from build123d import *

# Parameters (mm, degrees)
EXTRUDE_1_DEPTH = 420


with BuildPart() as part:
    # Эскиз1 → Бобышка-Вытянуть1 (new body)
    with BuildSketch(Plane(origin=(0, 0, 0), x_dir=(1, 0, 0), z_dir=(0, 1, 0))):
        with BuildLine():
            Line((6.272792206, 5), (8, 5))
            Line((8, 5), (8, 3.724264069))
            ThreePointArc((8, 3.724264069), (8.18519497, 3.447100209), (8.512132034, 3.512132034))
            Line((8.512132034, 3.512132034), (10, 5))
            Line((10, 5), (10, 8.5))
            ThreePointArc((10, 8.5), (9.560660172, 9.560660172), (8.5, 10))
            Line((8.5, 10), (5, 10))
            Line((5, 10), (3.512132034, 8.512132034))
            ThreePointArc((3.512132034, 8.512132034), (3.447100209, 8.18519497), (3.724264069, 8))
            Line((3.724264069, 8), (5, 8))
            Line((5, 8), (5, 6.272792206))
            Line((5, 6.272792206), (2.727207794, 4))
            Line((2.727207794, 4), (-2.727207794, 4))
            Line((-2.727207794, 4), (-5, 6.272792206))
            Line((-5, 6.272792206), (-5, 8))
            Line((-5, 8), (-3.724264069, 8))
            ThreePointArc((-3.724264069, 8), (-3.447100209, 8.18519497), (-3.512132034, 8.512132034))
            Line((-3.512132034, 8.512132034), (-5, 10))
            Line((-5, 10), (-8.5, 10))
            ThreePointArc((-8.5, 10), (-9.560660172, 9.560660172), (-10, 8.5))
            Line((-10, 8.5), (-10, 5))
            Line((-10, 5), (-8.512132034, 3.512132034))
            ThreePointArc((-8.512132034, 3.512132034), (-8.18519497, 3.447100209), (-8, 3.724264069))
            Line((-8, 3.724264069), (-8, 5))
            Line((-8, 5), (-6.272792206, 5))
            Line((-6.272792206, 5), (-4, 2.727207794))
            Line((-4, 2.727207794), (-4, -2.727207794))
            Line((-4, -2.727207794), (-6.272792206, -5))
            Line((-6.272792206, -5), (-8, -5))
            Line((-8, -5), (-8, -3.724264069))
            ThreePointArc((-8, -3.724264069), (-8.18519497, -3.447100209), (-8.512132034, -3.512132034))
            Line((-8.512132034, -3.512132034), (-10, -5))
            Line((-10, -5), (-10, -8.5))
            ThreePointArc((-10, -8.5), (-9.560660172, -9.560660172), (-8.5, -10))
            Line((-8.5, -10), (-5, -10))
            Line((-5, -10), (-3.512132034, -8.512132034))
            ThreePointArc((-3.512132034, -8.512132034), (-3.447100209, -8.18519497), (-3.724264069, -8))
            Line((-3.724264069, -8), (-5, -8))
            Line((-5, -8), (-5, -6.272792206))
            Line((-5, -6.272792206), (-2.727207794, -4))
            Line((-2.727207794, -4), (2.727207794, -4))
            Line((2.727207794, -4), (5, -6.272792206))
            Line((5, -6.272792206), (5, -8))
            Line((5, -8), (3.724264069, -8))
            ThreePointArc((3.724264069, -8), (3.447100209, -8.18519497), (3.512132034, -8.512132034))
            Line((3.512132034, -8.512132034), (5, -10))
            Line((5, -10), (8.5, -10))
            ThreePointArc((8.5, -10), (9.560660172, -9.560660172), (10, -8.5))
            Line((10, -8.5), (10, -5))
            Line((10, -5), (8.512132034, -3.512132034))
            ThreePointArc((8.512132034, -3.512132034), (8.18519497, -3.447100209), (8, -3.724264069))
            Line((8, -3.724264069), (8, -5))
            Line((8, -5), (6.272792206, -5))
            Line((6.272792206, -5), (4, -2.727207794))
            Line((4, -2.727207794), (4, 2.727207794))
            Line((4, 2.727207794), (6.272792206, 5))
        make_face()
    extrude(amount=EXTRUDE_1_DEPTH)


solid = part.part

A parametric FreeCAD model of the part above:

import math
import FreeCAD as App
import Part
import Sketcher

V = App.Vector
Q = App.Units.Quantity

doc = App.newDocument("Part")
body = doc.addObject("PartDesign::Body", "Body")

sketch1 = body.newObject("Sketcher::SketchObject", "Sketch")
sketch1.AttachmentSupport = (doc.getObject("XZ_Plane"), [""])
sketch1.MapMode = "FlatFace"
sketch1.addGeometry([
    Part.LineSegment(V(6.27, -5, 0), V(8, -5, 0)),
    Part.LineSegment(V(8, -5, 0), V(8, -3.72, 0)),
    Part.ArcOfCircle(Part.Circle(V(8.3, -3.72, 0), V(0, 0, 1), 0.3), math.radians(45), math.radians(180)),
    Part.LineSegment(V(8.51, -3.51, 0), V(10, -5, 0)),
    Part.LineSegment(V(10, -5, 0), V(10, -8.5, 0)),
    Part.ArcOfCircle(Part.Circle(V(8.5, -8.5, 0), V(0, 0, 1), 1.5), math.radians(-90), math.radians(0)),
    Part.LineSegment(V(8.5, -10, 0), V(5, -10, 0)),
    Part.LineSegment(V(5, -10, 0), V(3.51, -8.51, 0)),
    Part.ArcOfCircle(Part.Circle(V(3.72, -8.3, 0), V(0, 0, 1), 0.3), math.radians(90), math.radians(225)),
    Part.LineSegment(V(3.72, -8, 0), V(5, -8, 0)),
    Part.LineSegment(V(5, -8, 0), V(5, -6.27, 0)),
    Part.LineSegment(V(5, -6.27, 0), V(2.73, -4, 0)),
    Part.LineSegment(V(2.73, -4, 0), V(-2.73, -4, 0)),
    Part.LineSegment(V(-2.73, -4, 0), V(-5, -6.27, 0)),
    Part.LineSegment(V(-5, -6.27, 0), V(-5, -8, 0)),
    Part.LineSegment(V(-5, -8, 0), V(-3.72, -8, 0)),
    Part.ArcOfCircle(Part.Circle(V(-3.72, -8.3, 0), V(0, 0, 1), 0.3), math.radians(-45), math.radians(90)),
    Part.LineSegment(V(-3.51, -8.51, 0), V(-5, -10, 0)),
    Part.LineSegment(V(-5, -10, 0), V(-8.5, -10, 0)),
    Part.ArcOfCircle(Part.Circle(V(-8.5, -8.5, 0), V(0, 0, 1), 1.5), math.radians(180), math.radians(270)),
    Part.LineSegment(V(-10, -8.5, 0), V(-10, -5, 0)),
    Part.LineSegment(V(-10, -5, 0), V(-8.51, -3.51, 0)),
    Part.ArcOfCircle(Part.Circle(V(-8.3, -3.72, 0), V(0, 0, 1), 0.3), math.radians(0), math.radians(135)),
    Part.LineSegment(V(-8, -3.72, 0), V(-8, -5, 0)),
    Part.LineSegment(V(-8, -5, 0), V(-6.27, -5, 0)),
    Part.LineSegment(V(-6.27, -5, 0), V(-4, -2.73, 0)),
    Part.LineSegment(V(-4, -2.73, 0), V(-4, 2.73, 0)),
    Part.LineSegment(V(-4, 2.73, 0), V(-6.27, 5, 0)),
    Part.LineSegment(V(-6.27, 5, 0), V(-8, 5, 0)),
    Part.LineSegment(V(-8, 5, 0), V(-8, 3.72, 0)),
    Part.ArcOfCircle(Part.Circle(V(-8.3, 3.72, 0), V(0, 0, 1), 0.3), math.radians(-135), math.radians(0)),
    Part.LineSegment(V(-8.51, 3.51, 0), V(-10, 5, 0)),
    Part.LineSegment(V(-10, 5, 0), V(-10, 8.5, 0)),
    Part.ArcOfCircle(Part.Circle(V(-8.5, 8.5, 0), V(0, 0, 1), 1.5), math.radians(90), math.radians(180)),
    Part.LineSegment(V(-8.5, 10, 0), V(-5, 10, 0)),
    Part.LineSegment(V(-5, 10, 0), V(-3.51, 8.51, 0)),
    Part.ArcOfCircle(Part.Circle(V(-3.72, 8.3, 0), V(0, 0, 1), 0.3), math.radians(-90), math.radians(45)),
    Part.LineSegment(V(-3.72, 8, 0), V(-5, 8, 0)),
    Part.LineSegment(V(-5, 8, 0), V(-5, 6.27, 0)),
    Part.LineSegment(V(-5, 6.27, 0), V(-2.73, 4, 0)),
    Part.LineSegment(V(-2.73, 4, 0), V(2.73, 4, 0)),
    Part.LineSegment(V(2.73, 4, 0), V(5, 6.27, 0)),
    Part.LineSegment(V(5, 6.27, 0), V(5, 8, 0)),
    Part.LineSegment(V(5, 8, 0), V(3.72, 8, 0)),
    Part.ArcOfCircle(Part.Circle(V(3.72, 8.3, 0), V(0, 0, 1), 0.3), math.radians(135), math.radians(270)),
    Part.LineSegment(V(3.51, 8.51, 0), V(5, 10, 0)),
    Part.LineSegment(V(5, 10, 0), V(8.5, 10, 0)),
    Part.ArcOfCircle(Part.Circle(V(8.5, 8.5, 0), V(0, 0, 1), 1.5), math.radians(0), math.radians(90)),
    Part.LineSegment(V(10, 8.5, 0), V(10, 5, 0)),
    Part.LineSegment(V(10, 5, 0), V(8.51, 3.51, 0)),
    Part.ArcOfCircle(Part.Circle(V(8.3, 3.72, 0), V(0, 0, 1), 0.3), math.radians(180), math.radians(315)),
    Part.LineSegment(V(8, 3.72, 0), V(8, 5, 0)),
    Part.LineSegment(V(8, 5, 0), V(6.27, 5, 0)),
    Part.LineSegment(V(6.27, 5, 0), V(4, 2.73, 0)),
    Part.LineSegment(V(4, 2.73, 0), V(4, -2.73, 0)),
    Part.LineSegment(V(4, -2.73, 0), V(6.27, -5, 0)),
], False)
sketch1.addConstraint([
    Sketcher.Constraint("Coincident", 0, 2, 1, 1),
    Sketcher.Constraint("Tangent", 1, 2, 2, 2),
    Sketcher.Constraint("Tangent", 2, 1, 3, 1),
    Sketcher.Constraint("Coincident", 3, 2, 4, 1),
    Sketcher.Constraint("Tangent", 4, 2, 5, 2),
    Sketcher.Constraint("Tangent", 5, 1, 6, 1),
    Sketcher.Constraint("Coincident", 6, 2, 7, 1),
    Sketcher.Constraint("Tangent", 7, 2, 8, 2),
    Sketcher.Constraint("Tangent", 8, 1, 9, 1),
    Sketcher.Constraint("Coincident", 9, 2, 10, 1),
    Sketcher.Constraint("Coincident", 10, 2, 11, 1),
    Sketcher.Constraint("Coincident", 11, 2, 12, 1),
    Sketcher.Constraint("Coincident", 12, 2, 13, 1),
    Sketcher.Constraint("Coincident", 13, 2, 14, 1),
    Sketcher.Constraint("Coincident", 14, 2, 15, 1),
    Sketcher.Constraint("Tangent", 15, 2, 16, 2),
    Sketcher.Constraint("Tangent", 16, 1, 17, 1),
    Sketcher.Constraint("Coincident", 17, 2, 18, 1),
    Sketcher.Constraint("Tangent", 18, 2, 19, 2),
    Sketcher.Constraint("Tangent", 19, 1, 20, 1),
    Sketcher.Constraint("Coincident", 20, 2, 21, 1),
    Sketcher.Constraint("Tangent", 21, 2, 22, 2),
    Sketcher.Constraint("Tangent", 22, 1, 23, 1),
    Sketcher.Constraint("Coincident", 23, 2, 24, 1),
    Sketcher.Constraint("Coincident", 24, 2, 25, 1),
    Sketcher.Constraint("Coincident", 25, 2, 26, 1),
    Sketcher.Constraint("Coincident", 26, 2, 27, 1),
    Sketcher.Constraint("Coincident", 27, 2, 28, 1),
    Sketcher.Constraint("Coincident", 28, 2, 29, 1),
    Sketcher.Constraint("Tangent", 29, 2, 30, 2),
    Sketcher.Constraint("Tangent", 30, 1, 31, 1),
    Sketcher.Constraint("Coincident", 31, 2, 32, 1),
    Sketcher.Constraint("Tangent", 32, 2, 33, 2),
    Sketcher.Constraint("Tangent", 33, 1, 34, 1),
    Sketcher.Constraint("Coincident", 34, 2, 35, 1),
    Sketcher.Constraint("Tangent", 35, 2, 36, 2),
    Sketcher.Constraint("Tangent", 36, 1, 37, 1),
    Sketcher.Constraint("Coincident", 37, 2, 38, 1),
    Sketcher.Constraint("Coincident", 38, 2, 39, 1),
    Sketcher.Constraint("Coincident", 39, 2, 40, 1),
    Sketcher.Constraint("Coincident", 40, 2, 41, 1),
    Sketcher.Constraint("Coincident", 41, 2, 42, 1),
    Sketcher.Constraint("Coincident", 42, 2, 43, 1),
    Sketcher.Constraint("Tangent", 43, 2, 44, 2),
    Sketcher.Constraint("Tangent", 44, 1, 45, 1),
    Sketcher.Constraint("Coincident", 45, 2, 46, 1),
    Sketcher.Constraint("Tangent", 46, 2, 47, 2),
    Sketcher.Constraint("Tangent", 47, 1, 48, 1),
    Sketcher.Constraint("Coincident", 48, 2, 49, 1),
    Sketcher.Constraint("Tangent", 49, 2, 50, 2),
    Sketcher.Constraint("Tangent", 50, 1, 51, 1),
    Sketcher.Constraint("Coincident", 51, 2, 52, 1),
    Sketcher.Constraint("Coincident", 52, 2, 53, 1),
    Sketcher.Constraint("Coincident", 53, 2, 54, 1),
    Sketcher.Constraint("Coincident", 54, 2, 55, 1),
    Sketcher.Constraint("Coincident", 55, 2, 0, 1),
    Sketcher.Constraint("Horizontal", 0),
    Sketcher.Constraint("Vertical", 1),
    Sketcher.Constraint("Vertical", 4),
    Sketcher.Constraint("Horizontal", 6),
    Sketcher.Constraint("Horizontal", 9),
    Sketcher.Constraint("Vertical", 10),
    Sketcher.Constraint("Horizontal", 12),
    Sketcher.Constraint("Vertical", 14),
    Sketcher.Constraint("Horizontal", 15),
    Sketcher.Constraint("Horizontal", 18),
    Sketcher.Constraint("Vertical", 20),
    Sketcher.Constraint("Vertical", 23),
    Sketcher.Constraint("Horizontal", 24),
    Sketcher.Constraint("Vertical", 26),
    Sketcher.Constraint("Horizontal", 28),
    Sketcher.Constraint("Vertical", 29),
    Sketcher.Constraint("Vertical", 32),
    Sketcher.Constraint("Horizontal", 34),
    Sketcher.Constraint("Horizontal", 37),
    Sketcher.Constraint("Vertical", 38),
    Sketcher.Constraint("Horizontal", 40),
    Sketcher.Constraint("Vertical", 42),
    Sketcher.Constraint("Horizontal", 43),
    Sketcher.Constraint("Horizontal", 46),
    Sketcher.Constraint("Vertical", 48),
    Sketcher.Constraint("Vertical", 51),
    Sketcher.Constraint("Horizontal", 52),
    Sketcher.Constraint("Vertical", 54),
    Sketcher.Constraint("Equal", 2, 8),
    Sketcher.Constraint("Equal", 8, 16),
    Sketcher.Constraint("Equal", 5, 19),
    Sketcher.Constraint("Equal", 16, 22),
    Sketcher.Constraint("Equal", 22, 30),
    Sketcher.Constraint("Equal", 19, 33),
    Sketcher.Constraint("Equal", 30, 36),
    Sketcher.Constraint("Equal", 36, 44),
    Sketcher.Constraint("Equal", 33, 47),
    Sketcher.Constraint("Equal", 44, 50),
    Sketcher.Constraint("Symmetric", 2, 3, 30, 3, -1, 1),
    Sketcher.Constraint("Symmetric", 5, 3, 33, 3, -1, 1),
    Sketcher.Constraint("Symmetric", 8, 3, 36, 3, -1, 1),
    Sketcher.Constraint("Symmetric", 16, 3, 44, 3, -1, 1),
    Sketcher.Constraint("Symmetric", 19, 3, 47, 3, -1, 1),
    Sketcher.Constraint("Symmetric", 22, 3, 50, 3, -1, 1),
    Sketcher.Constraint("Symmetric", 10, 2, 38, 2, -1, 1),
    Sketcher.Constraint("Symmetric", 11, 2, 39, 2, -1, 1),
    Sketcher.Constraint("Symmetric", 13, 2, 41, 2, -1, 1),
    Sketcher.Constraint("Symmetric", 24, 2, 52, 2, -1, 1),
    Sketcher.Constraint("Symmetric", 25, 2, 53, 2, -1, 1),
    Sketcher.Constraint("Symmetric", 27, 2, 55, 2, -1, 1),
    Sketcher.Constraint("Symmetric", 8, 3, 16, 3, -2),
    Sketcher.Constraint("Symmetric", 5, 3, 19, 3, -2),
    Sketcher.Constraint("Symmetric", 2, 3, 22, 3, -2),
    Sketcher.Constraint("Symmetric", 10, 2, 13, 2, -2),
    Sketcher.Constraint("Symmetric", 27, 2, 52, 2, -2),
    Sketcher.Constraint("Parallel", 3, 7),
    Sketcher.Constraint("Parallel", 7, 11),
    Sketcher.Constraint("Perpendicular", 11, 13),
    Sketcher.Constraint("Parallel", 13, 17),
    Sketcher.Constraint("Parallel", 17, 21),
    Sketcher.Constraint("Parallel", 21, 25),
    Sketcher.Constraint("Perpendicular", 25, 27),
    Sketcher.Constraint("Parallel", 27, 31),
    Sketcher.Constraint("Parallel", 31, 35),
    Sketcher.Constraint("Perpendicular", 39, 41),
    Sketcher.Constraint("Parallel", 41, 45),
    Sketcher.Constraint("Parallel", 45, 49),
    Sketcher.Constraint("Perpendicular", 53, 55),
    Sketcher.Constraint("Horizontal", 0, 2, 3, 2),
    Sketcher.Constraint("Horizontal", 7, 2, 16, 1),
    Sketcher.Constraint("Vertical", 6, 2, 9, 2),
    Sketcher.Constraint("Equal", 43, 1),
    Sketcher.Constraint("Equal", 46, 4),
    Sketcher.Constraint("Equal", 52, 10),
    Sketcher.Constraint("Equal", 40, 26),
    Sketcher.Constraint("Equal", 13, 25),
    Sketcher.Constraint("Radius", 2, Q("0.3 mm")),
    Sketcher.Constraint("Radius", 5, Q("1.5 mm")),
    Sketcher.Constraint("DistanceX", 6, 2, 6, 1, Q("3.5 mm")),
    Sketcher.Constraint("DistanceX", -1, 1, 0, 2, Q("8 mm")),
    Sketcher.Constraint("DistanceY", 0, 2, -1, 1, Q("5 mm")),
    Sketcher.Constraint("DistanceY", 11, 2, -1, 1, Q("4 mm")),
    Sketcher.Constraint("DistanceX", 0, 1, 0, 2, Q("1.727208 mm")),
])
pad1 = body.newObject("PartDesign::Pad", "Pad")
pad1.Profile = sketch1
pad1.Length = 420
pad1.Reversed = True

doc.recompute()
